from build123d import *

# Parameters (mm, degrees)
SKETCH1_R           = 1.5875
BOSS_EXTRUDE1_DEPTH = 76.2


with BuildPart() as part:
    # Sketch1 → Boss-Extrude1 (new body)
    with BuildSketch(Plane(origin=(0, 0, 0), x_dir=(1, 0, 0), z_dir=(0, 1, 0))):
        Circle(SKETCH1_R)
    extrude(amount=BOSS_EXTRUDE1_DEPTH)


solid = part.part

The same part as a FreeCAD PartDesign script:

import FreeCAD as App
import Part
import Sketcher

V = App.Vector
Q = App.Units.Quantity

doc = App.newDocument("Part")
params = doc.addObject("Spreadsheet::Sheet", "Params")
for row, (alias, value) in enumerate([
    ("sketch1_diameter", "0.125 in"),
    ("pad1_length", "3 in"),
], start=1):
    params.set(f"A{row}", alias)
    params.set(f"B{row}", "=" + value)
    params.setAlias(f"B{row}", alias)

body = doc.addObject("PartDesign::Body", "Body")

sketch1 = body.newObject("Sketcher::SketchObject", "Sketch")
sketch1.AttachmentSupport = (doc.getObject("XZ_Plane"), [""])
sketch1.MapMode = "FlatFace"
sketch1.addGeometry(Part.Circle(V(0, 0, 0), V(0, 0, 1), 1.6), False)
sketch1.addConstraint(Sketcher.Constraint("Coincident", 0, 3, -1, 1))
sketch1.addConstraint(Sketcher.Constraint("Diameter", 0, Q("0.125 in")))
sketch1.setExpression("Constraints[1]", "Params.sketch1_diameter")
pad1 = body.newObject("PartDesign::Pad", "Pad")
pad1.Profile = sketch1
pad1.setExpression("Length", "Params.pad1_length")
pad1.Reversed = True

doc.recompute()
